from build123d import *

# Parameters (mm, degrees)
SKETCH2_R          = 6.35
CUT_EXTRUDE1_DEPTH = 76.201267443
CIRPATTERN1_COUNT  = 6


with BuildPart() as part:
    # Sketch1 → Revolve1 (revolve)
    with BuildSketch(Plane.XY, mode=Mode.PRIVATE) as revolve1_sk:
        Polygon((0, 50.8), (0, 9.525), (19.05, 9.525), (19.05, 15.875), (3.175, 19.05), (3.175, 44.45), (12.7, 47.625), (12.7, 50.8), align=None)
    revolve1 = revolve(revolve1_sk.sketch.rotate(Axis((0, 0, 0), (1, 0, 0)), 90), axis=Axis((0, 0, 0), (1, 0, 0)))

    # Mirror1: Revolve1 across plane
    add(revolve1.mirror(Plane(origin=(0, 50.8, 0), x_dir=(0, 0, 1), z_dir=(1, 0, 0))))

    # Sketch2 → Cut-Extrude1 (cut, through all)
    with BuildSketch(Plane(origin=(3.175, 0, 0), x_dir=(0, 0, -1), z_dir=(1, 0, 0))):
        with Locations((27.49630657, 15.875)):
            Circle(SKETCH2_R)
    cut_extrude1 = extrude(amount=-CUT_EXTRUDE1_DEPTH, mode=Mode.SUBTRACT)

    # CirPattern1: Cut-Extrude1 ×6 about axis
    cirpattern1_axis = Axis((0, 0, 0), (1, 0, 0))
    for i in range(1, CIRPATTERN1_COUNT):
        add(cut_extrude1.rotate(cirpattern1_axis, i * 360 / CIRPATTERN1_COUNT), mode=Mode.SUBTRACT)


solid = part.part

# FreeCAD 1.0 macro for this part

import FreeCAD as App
import Part
import Sketcher

V = App.Vector
Q = App.Units.Quantity

doc = App.newDocument("Part")
params = doc.addObject("Spreadsheet::Sheet", "Params")
for row, (alias, value) in enumerate([
    ("sketch1_height", "1 in"),
    ("sketch1_width", "0.5 in"),
    ("sketch1_width2", "0.75 in"),
    ("sketch1_height2", "0.25 in"),
    ("sketch1_height3", "1.625 in"),
    ("revolution_angle", "360 deg"),
    ("sketch2_diameter", "0.5 in"),
], start=1):
    params.set(f"A{row}", alias)
    params.set(f"B{row}", "=" + value)
    params.setAlias(f"B{row}", alias)

body = doc.addObject("PartDesign::Body", "Body")

sketch1 = body.newObject("Sketcher::SketchObject", "Sketch")
sketch1.AttachmentSupport = (doc.getObject("XY_Plane"), [""])
sketch1.MapMode = "FlatFace"
sketch1.addGeometry([
    Part.LineSegment(V(0, 50.8, 0), V(0, 9.5, 0)),
    Part.LineSegment(V(0, 9.5, 0), V(19.1, 9.5, 0)),
    Part.LineSegment(V(19.1, 9.5, 0), V(19.1, 15.9, 0)),
    Part.LineSegment(V(19.1, 15.9, 0), V(3.2, 19.1, 0)),
    Part.LineSegment(V(3.2, 19.1, 0), V(3.2, 44.5, 0)),
    Part.LineSegment(V(3.2, 44.5, 0), V(12.7, 47.6, 0)),
    Part.LineSegment(V(12.7, 47.6, 0), V(12.7, 50.8, 0)),
    Part.LineSegment(V(12.7, 50.8, 0), V(0, 50.8, 0)),
], False)
sketch1.addConstraint([
    Sketcher.Constraint("Coincident", 0, 2, 1, 1),
    Sketcher.Constraint("Coincident", 1, 2, 2, 1),
    Sketcher.Constraint("Coincident", 2, 2, 3, 1),
    Sketcher.Constraint("Coincident", 3, 2, 4, 1),
    Sketcher.Constraint("Coincident", 4, 2, 5, 1),
    Sketcher.Constraint("Coincident", 5, 2, 6, 1),
    Sketcher.Constraint("Coincident", 6, 2, 7, 1),
    Sketcher.Constraint("Coincident", 7, 2, 0, 1),
    Sketcher.Constraint("Vertical", 0),
    Sketcher.Constraint("Horizontal", 1),
    Sketcher.Constraint("Vertical", 2),
    Sketcher.Constraint("Vertical", 4),
    Sketcher.Constraint("Vertical", 6),
    Sketcher.Constraint("Horizontal", 7),
    Sketcher.Constraint("PointOnObject", 0, 2, -2),
    Sketcher.Constraint("DistanceY", 4, 1, 4, 2, Q("1 in")),
    Sketcher.Constraint("DistanceX", 7, 2, 7, 1, Q("0.5 in")),
    Sketcher.Constraint("DistanceY", -1, 1, 6, 2, Q("2 in")),
    Sketcher.Constraint("DistanceX", 1, 1, 1, 2, Q("0.75 in")),
    Sketcher.Constraint("DistanceY", 2, 1, 2, 2, Q("0.25 in")),
    Sketcher.Constraint("DistanceY", 1, 2, 5, 2, Q("1.5 in")),
    Sketcher.Constraint("DistanceY", 0, 2, 0, 1, Q("1.625 in")),
    Sketcher.Constraint("DistanceY", -1, 1, 3, 2, Q("0.75 in")),
    Sketcher.Constraint("DistanceX", -1, 1, 3, 2, Q("0.125 in")),
])
sketch1.setExpression("Constraints[15]", "Params.sketch1_height")
sketch1.setExpression("Constraints[16]", "Params.sketch1_width")
sketch1.setExpression("Constraints[18]", "Params.sketch1_width2")
sketch1.setExpression("Constraints[19]", "Params.sketch1_height2")
sketch1.setExpression("Constraints[21]", "Params.sketch1_height3")
revolution = body.newObject("PartDesign::Revolution", "Revolution")
revolution.Profile = sketch1
revolution.ReferenceAxis = (sketch1, ["H_Axis"])
revolution.setExpression("Angle", "Params.revolution_angle")
doc.recompute()

mirrored = body.newObject("PartDesign::Mirrored", "Mirrored")
mirrored.Originals = [revolution]
mirrored.MirrorPlane = (doc.getObject("YZ_Plane"), [""])
body.Tip = mirrored

sketch2 = body.newObject("Sketcher::SketchObject", "Sketch001")
sketch2.AttachmentSupport = (doc.getObject("YZ_Plane"), [""])
sketch2.MapMode = "FlatFace"
sketch2.AttachmentOffset = App.Placement(V(0, 0, 0.125 * 25.4), App.Rotation())
sketch2.addGeometry(Part.Circle(V(16, -27, 0), V(0, 0, 1), 6), False)
sketch2.addConstraint([
    Sketcher.Constraint("Diameter", 0, Q("0.5 in")),
    Sketcher.Constraint("DistanceX", -1, 1, 0, 3, Q("0.625 in")),
    Sketcher.Constraint("DistanceY", 0, 3, -1, 1, 27.496307),
])
sketch2.setExpression("Constraints[0]", "Params.sketch2_diameter")
pocket1 = body.newObject("PartDesign::Pocket", "Pocket")
pocket1.Profile = sketch2
pocket1.Type = "ThroughAll"
doc.recompute()

polarpattern = body.newObject("PartDesign::PolarPattern", "PolarPattern")
polarpattern.Originals = [pocket1]
polarpattern.Axis = (doc.getObject("X_Axis"), [""])
polarpattern.Angle = 360
polarpattern.Occurrences = 6
body.Tip = polarpattern

doc.recompute()
